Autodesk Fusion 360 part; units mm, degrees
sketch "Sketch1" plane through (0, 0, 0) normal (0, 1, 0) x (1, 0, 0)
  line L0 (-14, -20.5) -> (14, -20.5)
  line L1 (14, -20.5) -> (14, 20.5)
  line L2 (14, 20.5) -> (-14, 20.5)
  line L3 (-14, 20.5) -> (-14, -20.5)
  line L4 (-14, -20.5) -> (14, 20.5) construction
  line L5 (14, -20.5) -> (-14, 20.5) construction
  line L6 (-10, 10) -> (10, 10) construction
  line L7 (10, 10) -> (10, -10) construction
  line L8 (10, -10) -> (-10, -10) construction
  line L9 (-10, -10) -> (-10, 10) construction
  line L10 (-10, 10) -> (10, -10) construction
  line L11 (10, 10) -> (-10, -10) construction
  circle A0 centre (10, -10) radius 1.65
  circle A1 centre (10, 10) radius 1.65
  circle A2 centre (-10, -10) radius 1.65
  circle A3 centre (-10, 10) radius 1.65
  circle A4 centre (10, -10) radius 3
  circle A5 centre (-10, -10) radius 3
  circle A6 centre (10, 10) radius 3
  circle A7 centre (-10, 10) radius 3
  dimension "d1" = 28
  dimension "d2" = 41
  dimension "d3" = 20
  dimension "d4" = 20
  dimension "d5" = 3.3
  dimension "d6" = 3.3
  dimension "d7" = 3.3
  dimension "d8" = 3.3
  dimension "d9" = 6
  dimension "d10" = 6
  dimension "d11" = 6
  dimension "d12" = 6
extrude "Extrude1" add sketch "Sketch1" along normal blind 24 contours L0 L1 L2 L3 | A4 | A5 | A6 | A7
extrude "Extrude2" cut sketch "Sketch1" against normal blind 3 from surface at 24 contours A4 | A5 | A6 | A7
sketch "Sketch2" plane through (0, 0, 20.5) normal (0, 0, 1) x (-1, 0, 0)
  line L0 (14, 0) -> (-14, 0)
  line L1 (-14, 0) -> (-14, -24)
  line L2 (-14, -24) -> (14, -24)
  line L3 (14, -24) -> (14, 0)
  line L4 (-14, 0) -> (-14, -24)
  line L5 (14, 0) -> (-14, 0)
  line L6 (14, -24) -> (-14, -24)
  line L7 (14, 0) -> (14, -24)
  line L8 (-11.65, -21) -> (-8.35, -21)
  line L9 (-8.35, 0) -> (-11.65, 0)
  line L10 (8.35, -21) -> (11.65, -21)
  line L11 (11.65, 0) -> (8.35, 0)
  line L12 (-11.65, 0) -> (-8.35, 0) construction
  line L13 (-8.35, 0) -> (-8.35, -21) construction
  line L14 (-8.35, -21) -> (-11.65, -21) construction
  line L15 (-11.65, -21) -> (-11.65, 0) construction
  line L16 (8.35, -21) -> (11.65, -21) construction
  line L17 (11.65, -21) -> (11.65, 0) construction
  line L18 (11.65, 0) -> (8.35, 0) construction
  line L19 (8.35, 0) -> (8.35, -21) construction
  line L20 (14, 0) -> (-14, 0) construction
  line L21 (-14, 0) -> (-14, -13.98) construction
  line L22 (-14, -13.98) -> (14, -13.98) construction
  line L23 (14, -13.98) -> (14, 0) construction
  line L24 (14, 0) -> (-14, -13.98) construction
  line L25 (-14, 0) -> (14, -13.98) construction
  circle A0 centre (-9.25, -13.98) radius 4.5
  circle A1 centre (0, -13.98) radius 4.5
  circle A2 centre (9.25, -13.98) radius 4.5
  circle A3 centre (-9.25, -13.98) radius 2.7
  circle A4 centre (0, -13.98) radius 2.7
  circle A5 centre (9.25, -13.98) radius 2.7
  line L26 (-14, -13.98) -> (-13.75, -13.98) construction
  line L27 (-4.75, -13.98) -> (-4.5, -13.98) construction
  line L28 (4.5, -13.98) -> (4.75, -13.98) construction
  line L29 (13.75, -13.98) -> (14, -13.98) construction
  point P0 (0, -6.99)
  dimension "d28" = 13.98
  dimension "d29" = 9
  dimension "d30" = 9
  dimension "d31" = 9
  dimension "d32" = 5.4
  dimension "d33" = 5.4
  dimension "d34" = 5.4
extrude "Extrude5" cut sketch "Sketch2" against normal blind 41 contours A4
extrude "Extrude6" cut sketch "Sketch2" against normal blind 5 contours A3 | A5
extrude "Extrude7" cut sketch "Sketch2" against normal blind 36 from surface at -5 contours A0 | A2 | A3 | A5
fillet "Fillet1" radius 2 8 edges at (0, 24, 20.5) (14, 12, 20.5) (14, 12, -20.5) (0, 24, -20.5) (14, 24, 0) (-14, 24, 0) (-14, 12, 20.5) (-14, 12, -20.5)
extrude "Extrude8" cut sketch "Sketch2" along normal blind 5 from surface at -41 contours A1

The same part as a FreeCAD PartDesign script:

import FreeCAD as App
import Part
import Sketcher


def edges_at(feature, points):
    """Names of the edges that pass closest to the given points."""
    edges = feature.Shape.Edges
    near = lambda p: min(range(len(edges)), key=lambda i: edges[i].distToShape(Part.Vertex(*p))[0])
    return sorted({f"Edge{near(p) + 1}" for p in points})

doc = App.newDocument("Part")
body = doc.addObject("PartDesign::Body", "Body")

sketch1 = body.newObject("Sketcher::SketchObject", "Sketch")
sketch1.AttachmentSupport = (doc.getObject("XZ_Plane"), [""])
sketch1.MapMode = "FlatFace"
sketch1.addGeometry(Part.LineSegment(App.Vector(-14, -20.5, 0), App.Vector(-14, 20.5, 0)), False)
sketch1.addGeometry(Part.LineSegment(App.Vector(-14, 20.5, 0), App.Vector(14, 20.5, 0)), False)
sketch1.addGeometry(Part.LineSegment(App.Vector(14, 20.5, 0), App.Vector(14, -20.5, 0)), False)
sketch1.addGeometry(Part.LineSegment(App.Vector(14, -20.5, 0), App.Vector(-14, -20.5, 0)), False)
sketch1.addGeometry(Part.Circle(App.Vector(-10, 10, 0), App.Vector(0, 0, 1), 1.6), False)
sketch1.addGeometry(Part.Circle(App.Vector(10, 10, 0), App.Vector(0, 0, 1), 1.6), False)
sketch1.addGeometry(Part.Circle(App.Vector(-10, -10, 0), App.Vector(0, 0, 1), 1.6), False)
sketch1.addGeometry(Part.Circle(App.Vector(10, -10, 0), App.Vector(0, 0, 1), 1.6), False)
sketch1.addConstraint(Sketcher.Constraint("Coincident", 0, 2, 1, 1))
sketch1.addConstraint(Sketcher.Constraint("Coincident", 1, 2, 2, 1))
sketch1.addConstraint(Sketcher.Constraint("Coincident", 2, 2, 3, 1))
sketch1.addConstraint(Sketcher.Constraint("Coincident", 3, 2, 0, 1))
sketch1.addConstraint(Sketcher.Constraint("Vertical", 0))
sketch1.addConstraint(Sketcher.Constraint("Horizontal", 1))
sketch1.addConstraint(Sketcher.Constraint("Vertical", 2))
sketch1.addConstraint(Sketcher.Constraint("Horizontal", 3))
sketch1.addConstraint(Sketcher.Constraint("Equal", 4, 5))
sketch1.addConstraint(Sketcher.Constraint("Equal", 5, 6))
sketch1.addConstraint(Sketcher.Constraint("Equal", 6, 7))
sketch1.addConstraint(Sketcher.Constraint("Symmetric", 5, 3, 6, 3, -1, 1))
sketch1.addConstraint(Sketcher.Constraint("Symmetric", 4, 3, 7, 3, -1, 1))
sketch1.addConstraint(Sketcher.Constraint("Symmetric", 0, 2, 2, 2, -1, 1))
sketch1.addConstraint(Sketcher.Constraint("Symmetric", 4, 3, 5, 3, -2))
sketch1.addConstraint(Sketcher.Constraint("Diameter", 4, 3.3))
sketch1.addConstraint(Sketcher.Constraint("DistanceX", 1, 1, 1, 2, 28.0))
sketch1.addConstraint(Sketcher.Constraint("DistanceY", 0, 1, 0, 2, 41.0))
sketch1.addConstraint(Sketcher.Constraint("DistanceX", 4, 3, 5, 3, 20.0))
sketch1.addConstraint(Sketcher.Constraint("DistanceY", 6, 3, 4, 3, 20.0))
pad1 = body.newObject("PartDesign::Pad", "Pad")
pad1.Profile = sketch1
pad1.Length = 24
pad1.Reversed = True

sketch2 = body.newObject("Sketcher::SketchObject", "Sketch001")
sketch2.AttachmentSupport = (doc.getObject("XZ_Plane"), [""])
sketch2.MapMode = "FlatFace"
sketch2.AttachmentOffset = App.Placement(App.Vector(0, 0, -24), App.Rotation())
sketch2.addGeometry(Part.Circle(App.Vector(10, 10, 0), App.Vector(0, 0, 1), 3), False)
sketch2.addGeometry(Part.Circle(App.Vector(10, 10, 0), App.Vector(0, 0, 1), 1.6), False)
sketch2.addGeometry(Part.Circle(App.Vector(-10, 10, 0), App.Vector(0, 0, 1), 3), False)
sketch2.addGeometry(Part.Circle(App.Vector(-10, 10, 0), App.Vector(0, 0, 1), 1.6), False)
sketch2.addGeometry(Part.Circle(App.Vector(10, -10, 0), App.Vector(0, 0, 1), 3), False)
sketch2.addGeometry(Part.Circle(App.Vector(10, -10, 0), App.Vector(0, 0, 1), 1.6), False)
sketch2.addGeometry(Part.Circle(App.Vector(-10, -10, 0), App.Vector(0, 0, 1), 3), False)
sketch2.addGeometry(Part.Circle(App.Vector(-10, -10, 0), App.Vector(0, 0, 1), 1.6), False)
sketch2.addConstraint(Sketcher.Constraint("Coincident", 1, 3, 0, 3))
sketch2.addConstraint(Sketcher.Constraint("Coincident", 3, 3, 2, 3))
sketch2.addConstraint(Sketcher.Constraint("Coincident", 5, 3, 4, 3))
sketch2.addConstraint(Sketcher.Constraint("Coincident", 7, 3, 6, 3))
sketch2.addConstraint(Sketcher.Constraint("Equal", 0, 2))
sketch2.addConstraint(Sketcher.Constraint("Equal", 1, 3))
sketch2.addConstraint(Sketcher.Constraint("Equal", 2, 4))
sketch2.addConstraint(Sketcher.Constraint("Equal", 3, 5))
sketch2.addConstraint(Sketcher.Constraint("Equal", 4, 6))
sketch2.addConstraint(Sketcher.Constraint("Equal", 5, 7))
sketch2.addConstraint(Sketcher.Constraint("Symmetric", 2, 3, 4, 3, -1, 1))
sketch2.addConstraint(Sketcher.Constraint("Symmetric", 0, 3, 6, 3, -1, 1))
sketch2.addConstraint(Sketcher.Constraint("Symmetric", 0, 3, 2, 3, -2))
sketch2.addConstraint(Sketcher.Constraint("Diameter", 0, 6.0))
sketch2.addConstraint(Sketcher.Constraint("Diameter", 1, 3.3))
sketch2.addConstraint(Sketcher.Constraint("DistanceX", 2, 3, 0, 3, 20.0))
sketch2.addConstraint(Sketcher.Constraint("DistanceY", 4, 3, 0, 3, 20.0))
pocket1 = body.newObject("PartDesign::Pocket", "Pocket")
pocket1.Profile = sketch2
pocket1.Length = 3
pocket1.Reversed = True

sketch3 = body.newObject("Sketcher::SketchObject", "Sketch002")
sketch3.AttachmentSupport = (doc.getObject("XY_Plane"), [""])
sketch3.MapMode = "FlatFace"
sketch3.AttachmentOffset = App.Placement(App.Vector(0, 0, 20.5), App.Rotation())
sketch3.addGeometry(Part.Circle(App.Vector(0, 14, 0), App.Vector(0, 0, 1), 2.7), False)
sketch3.addConstraint(Sketcher.Constraint("PointOnObject", 0, 3, -2))
sketch3.addConstraint(Sketcher.Constraint("Diameter", 0, 5.4))
sketch3.addConstraint(Sketcher.Constraint("DistanceY", -1, 1, 0, 3, 13.98))
pocket2 = body.newObject("PartDesign::Pocket", "Pocket001")
pocket2.Profile = sketch3
pocket2.Length = 41

sketch4 = body.newObject("Sketcher::SketchObject", "Sketch003")
sketch4.AttachmentSupport = (doc.getObject("XY_Plane"), [""])
sketch4.MapMode = "FlatFace"
sketch4.AttachmentOffset = App.Placement(App.Vector(0, 0, 20.5), App.Rotation())
sketch4.addGeometry(Part.Circle(App.Vector(9.2, 14, 0), App.Vector(0, 0, 1), 2.7), False)
sketch4.addGeometry(Part.Circle(App.Vector(-9.2, 14, 0), App.Vector(0, 0, 1), 2.7), False)
sketch4.addConstraint(Sketcher.Constraint("Equal", 0, 1))
sketch4.addConstraint(Sketcher.Constraint("Symmetric", 0, 3, 1, 3, -2))
sketch4.addConstraint(Sketcher.Constraint("Diameter", 0, 5.4))
sketch4.addConstraint(Sketcher.Constraint("DistanceY", -1, 1, 0, 3, 13.98))
sketch4.addConstraint(Sketcher.Constraint("DistanceX", 1, 3, 0, 3, 18.5))
pocket3 = body.newObject("PartDesign::Pocket", "Pocket002")
pocket3.Profile = sketch4
pocket3.Length = 5

sketch5 = body.newObject("Sketcher::SketchObject", "Sketch004")
sketch5.AttachmentSupport = (doc.getObject("XY_Plane"), [""])
sketch5.MapMode = "FlatFace"
sketch5.AttachmentOffset = App.Placement(App.Vector(0, 0, 15.5), App.Rotation())
sketch5.addGeometry(Part.Circle(App.Vector(9.2, 14, 0), App.Vector(0, 0, 1), 4.5), False)
sketch5.addGeometry(Part.Circle(App.Vector(-9.2, 14, 0), App.Vector(0, 0, 1), 4.5), False)
sketch5.addConstraint(Sketcher.Constraint("Equal", 0, 1))
sketch5.addConstraint(Sketcher.Constraint("Symmetric", 0, 3, 1, 3, -2))
sketch5.addConstraint(Sketcher.Constraint("Diameter", 0, 9.0))
sketch5.addConstraint(Sketcher.Constraint("DistanceY", -1, 1, 0, 3, 13.98))
sketch5.addConstraint(Sketcher.Constraint("DistanceX", 1, 3, 0, 3, 18.5))
pocket4 = body.newObject("PartDesign::Pocket", "Pocket003")
pocket4.Profile = sketch5
pocket4.Length = 36
doc.recompute()

fillet = body.newObject("PartDesign::Fillet", "Fillet")
fillet.Base = (pocket4, edges_at(pocket4, [
    (0, 24, 20.5),
    (14, 12, 20.5),
    (14, 12, -20.5),
    (0, 24, -20.5),
    (14, 24, 0),
    (-14, 24, 0),
    (-14, 12, 20.5),
    (-14, 12, -20.5),
]))
fillet.Radius = 2

sketch6 = body.newObject("Sketcher::SketchObject", "Sketch005")
sketch6.AttachmentSupport = (doc.getObject("XY_Plane"), [""])
sketch6.MapMode = "FlatFace"
sketch6.AttachmentOffset = App.Placement(App.Vector(0, 0, -20.5), App.Rotation())
sketch6.addGeometry(Part.Circle(App.Vector(0, 14, 0), App.Vector(0, 0, 1), 4.5), False)
sketch6.addGeometry(Part.Circle(App.Vector(0, 14, 0), App.Vector(0, 0, 1), 2.7), False)
sketch6.addConstraint(Sketcher.Constraint("Coincident", 1, 3, 0, 3))
sketch6.addConstraint(Sketcher.Constraint("PointOnObject", 0, 3, -2))
sketch6.addConstraint(Sketcher.Constraint("Diameter", 0, 9.0))
sketch6.addConstraint(Sketcher.Constraint("Diameter", 1, 5.4))
sketch6.addConstraint(Sketcher.Constraint("DistanceY", -1, 1, 0, 3, 13.98))
pocket5 = body.newObject("PartDesign::Pocket", "Pocket004")
pocket5.Profile = sketch6
pocket5.Length = 5
pocket5.Reversed = True

doc.recompute()
